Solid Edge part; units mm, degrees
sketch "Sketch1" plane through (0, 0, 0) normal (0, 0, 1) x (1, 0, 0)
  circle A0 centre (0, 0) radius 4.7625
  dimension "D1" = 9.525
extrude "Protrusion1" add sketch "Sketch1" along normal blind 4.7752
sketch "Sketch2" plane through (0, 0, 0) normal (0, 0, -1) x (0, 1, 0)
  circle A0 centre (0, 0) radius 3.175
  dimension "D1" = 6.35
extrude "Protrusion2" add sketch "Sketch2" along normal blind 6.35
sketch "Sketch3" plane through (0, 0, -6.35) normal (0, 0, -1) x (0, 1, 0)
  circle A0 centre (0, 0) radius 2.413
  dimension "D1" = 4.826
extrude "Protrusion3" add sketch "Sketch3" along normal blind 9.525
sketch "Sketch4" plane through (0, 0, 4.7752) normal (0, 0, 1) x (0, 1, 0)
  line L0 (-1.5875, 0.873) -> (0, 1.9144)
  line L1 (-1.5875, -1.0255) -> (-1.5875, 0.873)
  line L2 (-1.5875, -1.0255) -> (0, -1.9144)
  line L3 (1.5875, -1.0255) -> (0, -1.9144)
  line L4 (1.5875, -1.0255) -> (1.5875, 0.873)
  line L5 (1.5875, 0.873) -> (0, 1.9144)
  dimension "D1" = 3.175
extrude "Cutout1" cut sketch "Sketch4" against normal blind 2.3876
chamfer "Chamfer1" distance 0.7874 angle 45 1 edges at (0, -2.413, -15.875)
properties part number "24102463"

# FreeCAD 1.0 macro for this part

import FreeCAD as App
import Part
import Sketcher
Q = App.Units.Quantity


def edges_at(feature, points):
    """Names of the edges that pass closest to the given points."""
    edges = feature.Shape.Edges
    near = lambda p: min(range(len(edges)), key=lambda i: edges[i].distToShape(Part.Vertex(*p))[0])
    return sorted({f"Edge{near(p) + 1}" for p in points})


def add_polygon(sketch, points):
    """Adds a closed chain of lines whose ends are joined by coincident constraints."""
    first, n = sketch.GeometryCount, len(points)
    for a, b in zip(points, points[1:] + points[:1]):
        sketch.addGeometry(Part.LineSegment(App.Vector(*a, 0), App.Vector(*b, 0)), False)
    for i in range(n):
        sketch.addConstraint(Sketcher.Constraint("Coincident", first + i, 2, first + (i + 1) % n, 1))

doc = App.newDocument("Part")
body = doc.addObject("PartDesign::Body", "Body")

# Sketch on XY plane
sketch1 = body.newObject("Sketcher::SketchObject", "Sketch")
sketch1.AttachmentSupport = (doc.getObject("XY_Plane"), [""])
sketch1.MapMode = "FlatFace"
sketch1.addGeometry(Part.Circle(App.Vector(0, 0, 0), App.Vector(0, 0, 1), 4.8), False)
sketch1.addConstraint([
    Sketcher.Constraint("Coincident", 0, 3, -1, 1),
    Sketcher.Constraint("Diameter", 0, Q("0.375 in")),
])
pad1 = body.newObject("PartDesign::Pad", "Pad")
pad1.Profile = sketch1
pad1.Length = Q("0.188 in")

# Sketch on XY plane
sketch2 = body.newObject("Sketcher::SketchObject", "Sketch001")
sketch2.AttachmentSupport = (doc.getObject("XY_Plane"), [""])
sketch2.MapMode = "FlatFace"
sketch2.addGeometry(Part.Circle(App.Vector(0, 0, 0), App.Vector(0, 0, 1), 3.2), False)
sketch2.addConstraint([
    Sketcher.Constraint("Coincident", 0, 3, -1, 1),
    Sketcher.Constraint("Diameter", 0, Q("0.25 in")),
])
pad2 = body.newObject("PartDesign::Pad", "Pad001")
pad2.Profile = sketch2
pad2.Length = Q("0.25 in")
pad2.Reversed = True

# Sketch on XY plane
sketch3 = body.newObject("Sketcher::SketchObject", "Sketch002")
sketch3.AttachmentSupport = (doc.getObject("XY_Plane"), [""])
sketch3.MapMode = "FlatFace"
sketch3.AttachmentOffset = App.Placement(App.Vector(0, 0, -0.25 * 25.4), App.Rotation())
sketch3.addGeometry(Part.Circle(App.Vector(0, 0, 0), App.Vector(0, 0, 1), 2.4), False)
sketch3.addConstraint([
    Sketcher.Constraint("Coincident", 0, 3, -1, 1),
    Sketcher.Constraint("Diameter", 0, Q("0.19 in")),
])
pad3 = body.newObject("PartDesign::Pad", "Pad002")
pad3.Profile = sketch3
pad3.Length = Q("0.375 in")
pad3.Reversed = True

# Sketch on XY plane
sketch4 = body.newObject("Sketcher::SketchObject", "Sketch003")
sketch4.AttachmentSupport = (doc.getObject("XY_Plane"), [""])
sketch4.MapMode = "FlatFace"
sketch4.AttachmentOffset = App.Placement(App.Vector(0, 0, 0.188 * 25.4), App.Rotation())
add_polygon(sketch4, [(-1.9, 0), (-0.9, -1.6), (1, -1.6), (1.9, 0), (1, 1.6), (-0.9, 1.6)])  # lines 0-5
sketch4.addConstraint([
    Sketcher.Constraint("Horizontal", 1),
    Sketcher.Constraint("Horizontal", 4),
    Sketcher.Constraint("Symmetric", 2, 2, 5, 2, -1, 1),
    Sketcher.Constraint("Symmetric", 1, 2, 3, 2, -1),
    Sketcher.Constraint("PointOnObject", 2, 2, -1),
    Sketcher.Constraint("Vertical", 0, 2, 4, 2),
    Sketcher.Constraint("DistanceY", 0, 2, -1, 1, Q("0.0625 in")),
    Sketcher.Constraint("DistanceX", 1, 2, 2, 2, Q("0.035 in")),
    Sketcher.Constraint("DistanceX", 5, 2, 0, 2, Q("0.041 in")),
    Sketcher.Constraint("DistanceX", 1, 1, 1, 2, Q("1.8985 mm")),
])
pocket1 = body.newObject("PartDesign::Pocket", "Pocket")
pocket1.Profile = sketch4
pocket1.Length = Q("0.094 in")
doc.recompute()

chamfer = body.newObject("PartDesign::Chamfer", "Chamfer")
chamfer.Base = (pocket1, edges_at(pocket1, [(0, -2.413, -15.875)]))
chamfer.Size = Q("0.031 in")

doc.recompute()
